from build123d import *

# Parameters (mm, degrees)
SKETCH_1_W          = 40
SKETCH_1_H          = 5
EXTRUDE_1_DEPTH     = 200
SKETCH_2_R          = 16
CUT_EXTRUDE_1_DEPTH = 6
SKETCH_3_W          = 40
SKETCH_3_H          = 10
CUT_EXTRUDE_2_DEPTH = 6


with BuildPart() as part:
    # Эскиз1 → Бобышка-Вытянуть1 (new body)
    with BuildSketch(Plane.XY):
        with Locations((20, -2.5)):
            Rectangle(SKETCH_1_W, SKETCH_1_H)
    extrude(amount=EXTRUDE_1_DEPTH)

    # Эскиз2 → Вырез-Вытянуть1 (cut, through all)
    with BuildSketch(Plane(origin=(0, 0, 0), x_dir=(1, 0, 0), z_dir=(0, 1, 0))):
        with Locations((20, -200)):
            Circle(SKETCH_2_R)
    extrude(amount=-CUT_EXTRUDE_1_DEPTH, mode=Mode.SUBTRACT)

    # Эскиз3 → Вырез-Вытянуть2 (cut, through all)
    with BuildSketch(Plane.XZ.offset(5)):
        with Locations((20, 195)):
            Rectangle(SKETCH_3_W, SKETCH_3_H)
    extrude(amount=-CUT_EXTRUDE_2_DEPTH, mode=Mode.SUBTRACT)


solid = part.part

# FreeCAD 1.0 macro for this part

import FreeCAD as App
import Part
import Sketcher
from FreeCAD import Vector
Q = App.Units.Quantity


def add_polygon(sketch, points):
    """Adds a closed chain of lines whose ends are joined by coincident constraints."""
    first, n = sketch.GeometryCount, len(points)
    for a, b in zip(points, points[1:] + points[:1]):
        sketch.addGeometry(Part.LineSegment(App.Vector(*a, 0), App.Vector(*b, 0)), False)
    for i in range(n):
        sketch.addConstraint(Sketcher.Constraint("Coincident", first + i, 2, first + (i + 1) % n, 1))

doc = App.newDocument("Part")
body = doc.addObject("PartDesign::Body", "Body")

# Sketch on XY plane
sketch1 = body.newObject("Sketcher::SketchObject", "Sketch")
sketch1.AttachmentSupport = (doc.getObject("XY_Plane"), [""])
sketch1.MapMode = "FlatFace"
add_polygon(sketch1, [(0, 0), (0, -5), (40, -5), (40, 0)])  # lines 0-3
sketch1.addConstraint(Sketcher.Constraint("Vertical", 0))
sketch1.addConstraint(Sketcher.Constraint("Horizontal", 1))
sketch1.addConstraint(Sketcher.Constraint("Vertical", 2))
sketch1.addConstraint(Sketcher.Constraint("Horizontal", 3))
sketch1.addConstraint(Sketcher.Constraint("Coincident", 3, 2, -1, 1))
sketch1.addConstraint(Sketcher.Constraint("DistanceX", 1, 1, 1, 2, Q("40 mm")))
sketch1.addConstraint(Sketcher.Constraint("DistanceY", 0, 2, 0, 1, Q("5 mm")))
pad1 = body.newObject("PartDesign::Pad", "Pad")
pad1.Profile = sketch1
pad1.Length = 200

# Sketch on XZ plane
sketch2 = body.newObject("Sketcher::SketchObject", "Sketch001")
sketch2.AttachmentSupport = (doc.getObject("XZ_Plane"), [""])
sketch2.MapMode = "FlatFace"
sketch2.addGeometry(Part.Circle(Vector(20, 200, 0), Vector(0, 0, 1), 16), False)
sketch2.addConstraint(Sketcher.Constraint("Diameter", 0, Q("32 mm")))
sketch2.addConstraint(Sketcher.Constraint("DistanceX", -1, 1, 0, 3, Q("20 mm")))
sketch2.addConstraint(Sketcher.Constraint("DistanceY", -1, 1, 0, 3, Q("200 mm")))
pocket1 = body.newObject("PartDesign::Pocket", "Pocket")
pocket1.Profile = sketch2
pocket1.Type = "ThroughAll"
pocket1.Reversed = True

# Sketch on XZ plane
sketch3 = body.newObject("Sketcher::SketchObject", "Sketch002")
sketch3.AttachmentSupport = (doc.getObject("XZ_Plane"), [""])
sketch3.MapMode = "FlatFace"
sketch3.AttachmentOffset = App.Placement(Vector(0, 0, 5), App.Rotation())
add_polygon(sketch3, [(0, 200), (0, 190), (40, 190), (40, 200)])  # lines 0-3
sketch3.addConstraint(Sketcher.Constraint("Vertical", 0))
sketch3.addConstraint(Sketcher.Constraint("Horizontal", 1))
sketch3.addConstraint(Sketcher.Constraint("Vertical", 2))
sketch3.addConstraint(Sketcher.Constraint("Horizontal", 3))
sketch3.addConstraint(Sketcher.Constraint("PointOnObject", 0, 2, -2))
sketch3.addConstraint(Sketcher.Constraint("DistanceX", 1, 1, 1, 2, Q("40 mm")))
sketch3.addConstraint(Sketcher.Constraint("DistanceY", 0, 2, 0, 1, Q("10 mm")))
sketch3.addConstraint(Sketcher.Constraint("DistanceY", -1, 1, 0, 2, Q("190 mm")))
pocket2 = body.newObject("PartDesign::Pocket", "Pocket001")
pocket2.Profile = sketch3
pocket2.Type = "ThroughAll"

doc.recompute()
